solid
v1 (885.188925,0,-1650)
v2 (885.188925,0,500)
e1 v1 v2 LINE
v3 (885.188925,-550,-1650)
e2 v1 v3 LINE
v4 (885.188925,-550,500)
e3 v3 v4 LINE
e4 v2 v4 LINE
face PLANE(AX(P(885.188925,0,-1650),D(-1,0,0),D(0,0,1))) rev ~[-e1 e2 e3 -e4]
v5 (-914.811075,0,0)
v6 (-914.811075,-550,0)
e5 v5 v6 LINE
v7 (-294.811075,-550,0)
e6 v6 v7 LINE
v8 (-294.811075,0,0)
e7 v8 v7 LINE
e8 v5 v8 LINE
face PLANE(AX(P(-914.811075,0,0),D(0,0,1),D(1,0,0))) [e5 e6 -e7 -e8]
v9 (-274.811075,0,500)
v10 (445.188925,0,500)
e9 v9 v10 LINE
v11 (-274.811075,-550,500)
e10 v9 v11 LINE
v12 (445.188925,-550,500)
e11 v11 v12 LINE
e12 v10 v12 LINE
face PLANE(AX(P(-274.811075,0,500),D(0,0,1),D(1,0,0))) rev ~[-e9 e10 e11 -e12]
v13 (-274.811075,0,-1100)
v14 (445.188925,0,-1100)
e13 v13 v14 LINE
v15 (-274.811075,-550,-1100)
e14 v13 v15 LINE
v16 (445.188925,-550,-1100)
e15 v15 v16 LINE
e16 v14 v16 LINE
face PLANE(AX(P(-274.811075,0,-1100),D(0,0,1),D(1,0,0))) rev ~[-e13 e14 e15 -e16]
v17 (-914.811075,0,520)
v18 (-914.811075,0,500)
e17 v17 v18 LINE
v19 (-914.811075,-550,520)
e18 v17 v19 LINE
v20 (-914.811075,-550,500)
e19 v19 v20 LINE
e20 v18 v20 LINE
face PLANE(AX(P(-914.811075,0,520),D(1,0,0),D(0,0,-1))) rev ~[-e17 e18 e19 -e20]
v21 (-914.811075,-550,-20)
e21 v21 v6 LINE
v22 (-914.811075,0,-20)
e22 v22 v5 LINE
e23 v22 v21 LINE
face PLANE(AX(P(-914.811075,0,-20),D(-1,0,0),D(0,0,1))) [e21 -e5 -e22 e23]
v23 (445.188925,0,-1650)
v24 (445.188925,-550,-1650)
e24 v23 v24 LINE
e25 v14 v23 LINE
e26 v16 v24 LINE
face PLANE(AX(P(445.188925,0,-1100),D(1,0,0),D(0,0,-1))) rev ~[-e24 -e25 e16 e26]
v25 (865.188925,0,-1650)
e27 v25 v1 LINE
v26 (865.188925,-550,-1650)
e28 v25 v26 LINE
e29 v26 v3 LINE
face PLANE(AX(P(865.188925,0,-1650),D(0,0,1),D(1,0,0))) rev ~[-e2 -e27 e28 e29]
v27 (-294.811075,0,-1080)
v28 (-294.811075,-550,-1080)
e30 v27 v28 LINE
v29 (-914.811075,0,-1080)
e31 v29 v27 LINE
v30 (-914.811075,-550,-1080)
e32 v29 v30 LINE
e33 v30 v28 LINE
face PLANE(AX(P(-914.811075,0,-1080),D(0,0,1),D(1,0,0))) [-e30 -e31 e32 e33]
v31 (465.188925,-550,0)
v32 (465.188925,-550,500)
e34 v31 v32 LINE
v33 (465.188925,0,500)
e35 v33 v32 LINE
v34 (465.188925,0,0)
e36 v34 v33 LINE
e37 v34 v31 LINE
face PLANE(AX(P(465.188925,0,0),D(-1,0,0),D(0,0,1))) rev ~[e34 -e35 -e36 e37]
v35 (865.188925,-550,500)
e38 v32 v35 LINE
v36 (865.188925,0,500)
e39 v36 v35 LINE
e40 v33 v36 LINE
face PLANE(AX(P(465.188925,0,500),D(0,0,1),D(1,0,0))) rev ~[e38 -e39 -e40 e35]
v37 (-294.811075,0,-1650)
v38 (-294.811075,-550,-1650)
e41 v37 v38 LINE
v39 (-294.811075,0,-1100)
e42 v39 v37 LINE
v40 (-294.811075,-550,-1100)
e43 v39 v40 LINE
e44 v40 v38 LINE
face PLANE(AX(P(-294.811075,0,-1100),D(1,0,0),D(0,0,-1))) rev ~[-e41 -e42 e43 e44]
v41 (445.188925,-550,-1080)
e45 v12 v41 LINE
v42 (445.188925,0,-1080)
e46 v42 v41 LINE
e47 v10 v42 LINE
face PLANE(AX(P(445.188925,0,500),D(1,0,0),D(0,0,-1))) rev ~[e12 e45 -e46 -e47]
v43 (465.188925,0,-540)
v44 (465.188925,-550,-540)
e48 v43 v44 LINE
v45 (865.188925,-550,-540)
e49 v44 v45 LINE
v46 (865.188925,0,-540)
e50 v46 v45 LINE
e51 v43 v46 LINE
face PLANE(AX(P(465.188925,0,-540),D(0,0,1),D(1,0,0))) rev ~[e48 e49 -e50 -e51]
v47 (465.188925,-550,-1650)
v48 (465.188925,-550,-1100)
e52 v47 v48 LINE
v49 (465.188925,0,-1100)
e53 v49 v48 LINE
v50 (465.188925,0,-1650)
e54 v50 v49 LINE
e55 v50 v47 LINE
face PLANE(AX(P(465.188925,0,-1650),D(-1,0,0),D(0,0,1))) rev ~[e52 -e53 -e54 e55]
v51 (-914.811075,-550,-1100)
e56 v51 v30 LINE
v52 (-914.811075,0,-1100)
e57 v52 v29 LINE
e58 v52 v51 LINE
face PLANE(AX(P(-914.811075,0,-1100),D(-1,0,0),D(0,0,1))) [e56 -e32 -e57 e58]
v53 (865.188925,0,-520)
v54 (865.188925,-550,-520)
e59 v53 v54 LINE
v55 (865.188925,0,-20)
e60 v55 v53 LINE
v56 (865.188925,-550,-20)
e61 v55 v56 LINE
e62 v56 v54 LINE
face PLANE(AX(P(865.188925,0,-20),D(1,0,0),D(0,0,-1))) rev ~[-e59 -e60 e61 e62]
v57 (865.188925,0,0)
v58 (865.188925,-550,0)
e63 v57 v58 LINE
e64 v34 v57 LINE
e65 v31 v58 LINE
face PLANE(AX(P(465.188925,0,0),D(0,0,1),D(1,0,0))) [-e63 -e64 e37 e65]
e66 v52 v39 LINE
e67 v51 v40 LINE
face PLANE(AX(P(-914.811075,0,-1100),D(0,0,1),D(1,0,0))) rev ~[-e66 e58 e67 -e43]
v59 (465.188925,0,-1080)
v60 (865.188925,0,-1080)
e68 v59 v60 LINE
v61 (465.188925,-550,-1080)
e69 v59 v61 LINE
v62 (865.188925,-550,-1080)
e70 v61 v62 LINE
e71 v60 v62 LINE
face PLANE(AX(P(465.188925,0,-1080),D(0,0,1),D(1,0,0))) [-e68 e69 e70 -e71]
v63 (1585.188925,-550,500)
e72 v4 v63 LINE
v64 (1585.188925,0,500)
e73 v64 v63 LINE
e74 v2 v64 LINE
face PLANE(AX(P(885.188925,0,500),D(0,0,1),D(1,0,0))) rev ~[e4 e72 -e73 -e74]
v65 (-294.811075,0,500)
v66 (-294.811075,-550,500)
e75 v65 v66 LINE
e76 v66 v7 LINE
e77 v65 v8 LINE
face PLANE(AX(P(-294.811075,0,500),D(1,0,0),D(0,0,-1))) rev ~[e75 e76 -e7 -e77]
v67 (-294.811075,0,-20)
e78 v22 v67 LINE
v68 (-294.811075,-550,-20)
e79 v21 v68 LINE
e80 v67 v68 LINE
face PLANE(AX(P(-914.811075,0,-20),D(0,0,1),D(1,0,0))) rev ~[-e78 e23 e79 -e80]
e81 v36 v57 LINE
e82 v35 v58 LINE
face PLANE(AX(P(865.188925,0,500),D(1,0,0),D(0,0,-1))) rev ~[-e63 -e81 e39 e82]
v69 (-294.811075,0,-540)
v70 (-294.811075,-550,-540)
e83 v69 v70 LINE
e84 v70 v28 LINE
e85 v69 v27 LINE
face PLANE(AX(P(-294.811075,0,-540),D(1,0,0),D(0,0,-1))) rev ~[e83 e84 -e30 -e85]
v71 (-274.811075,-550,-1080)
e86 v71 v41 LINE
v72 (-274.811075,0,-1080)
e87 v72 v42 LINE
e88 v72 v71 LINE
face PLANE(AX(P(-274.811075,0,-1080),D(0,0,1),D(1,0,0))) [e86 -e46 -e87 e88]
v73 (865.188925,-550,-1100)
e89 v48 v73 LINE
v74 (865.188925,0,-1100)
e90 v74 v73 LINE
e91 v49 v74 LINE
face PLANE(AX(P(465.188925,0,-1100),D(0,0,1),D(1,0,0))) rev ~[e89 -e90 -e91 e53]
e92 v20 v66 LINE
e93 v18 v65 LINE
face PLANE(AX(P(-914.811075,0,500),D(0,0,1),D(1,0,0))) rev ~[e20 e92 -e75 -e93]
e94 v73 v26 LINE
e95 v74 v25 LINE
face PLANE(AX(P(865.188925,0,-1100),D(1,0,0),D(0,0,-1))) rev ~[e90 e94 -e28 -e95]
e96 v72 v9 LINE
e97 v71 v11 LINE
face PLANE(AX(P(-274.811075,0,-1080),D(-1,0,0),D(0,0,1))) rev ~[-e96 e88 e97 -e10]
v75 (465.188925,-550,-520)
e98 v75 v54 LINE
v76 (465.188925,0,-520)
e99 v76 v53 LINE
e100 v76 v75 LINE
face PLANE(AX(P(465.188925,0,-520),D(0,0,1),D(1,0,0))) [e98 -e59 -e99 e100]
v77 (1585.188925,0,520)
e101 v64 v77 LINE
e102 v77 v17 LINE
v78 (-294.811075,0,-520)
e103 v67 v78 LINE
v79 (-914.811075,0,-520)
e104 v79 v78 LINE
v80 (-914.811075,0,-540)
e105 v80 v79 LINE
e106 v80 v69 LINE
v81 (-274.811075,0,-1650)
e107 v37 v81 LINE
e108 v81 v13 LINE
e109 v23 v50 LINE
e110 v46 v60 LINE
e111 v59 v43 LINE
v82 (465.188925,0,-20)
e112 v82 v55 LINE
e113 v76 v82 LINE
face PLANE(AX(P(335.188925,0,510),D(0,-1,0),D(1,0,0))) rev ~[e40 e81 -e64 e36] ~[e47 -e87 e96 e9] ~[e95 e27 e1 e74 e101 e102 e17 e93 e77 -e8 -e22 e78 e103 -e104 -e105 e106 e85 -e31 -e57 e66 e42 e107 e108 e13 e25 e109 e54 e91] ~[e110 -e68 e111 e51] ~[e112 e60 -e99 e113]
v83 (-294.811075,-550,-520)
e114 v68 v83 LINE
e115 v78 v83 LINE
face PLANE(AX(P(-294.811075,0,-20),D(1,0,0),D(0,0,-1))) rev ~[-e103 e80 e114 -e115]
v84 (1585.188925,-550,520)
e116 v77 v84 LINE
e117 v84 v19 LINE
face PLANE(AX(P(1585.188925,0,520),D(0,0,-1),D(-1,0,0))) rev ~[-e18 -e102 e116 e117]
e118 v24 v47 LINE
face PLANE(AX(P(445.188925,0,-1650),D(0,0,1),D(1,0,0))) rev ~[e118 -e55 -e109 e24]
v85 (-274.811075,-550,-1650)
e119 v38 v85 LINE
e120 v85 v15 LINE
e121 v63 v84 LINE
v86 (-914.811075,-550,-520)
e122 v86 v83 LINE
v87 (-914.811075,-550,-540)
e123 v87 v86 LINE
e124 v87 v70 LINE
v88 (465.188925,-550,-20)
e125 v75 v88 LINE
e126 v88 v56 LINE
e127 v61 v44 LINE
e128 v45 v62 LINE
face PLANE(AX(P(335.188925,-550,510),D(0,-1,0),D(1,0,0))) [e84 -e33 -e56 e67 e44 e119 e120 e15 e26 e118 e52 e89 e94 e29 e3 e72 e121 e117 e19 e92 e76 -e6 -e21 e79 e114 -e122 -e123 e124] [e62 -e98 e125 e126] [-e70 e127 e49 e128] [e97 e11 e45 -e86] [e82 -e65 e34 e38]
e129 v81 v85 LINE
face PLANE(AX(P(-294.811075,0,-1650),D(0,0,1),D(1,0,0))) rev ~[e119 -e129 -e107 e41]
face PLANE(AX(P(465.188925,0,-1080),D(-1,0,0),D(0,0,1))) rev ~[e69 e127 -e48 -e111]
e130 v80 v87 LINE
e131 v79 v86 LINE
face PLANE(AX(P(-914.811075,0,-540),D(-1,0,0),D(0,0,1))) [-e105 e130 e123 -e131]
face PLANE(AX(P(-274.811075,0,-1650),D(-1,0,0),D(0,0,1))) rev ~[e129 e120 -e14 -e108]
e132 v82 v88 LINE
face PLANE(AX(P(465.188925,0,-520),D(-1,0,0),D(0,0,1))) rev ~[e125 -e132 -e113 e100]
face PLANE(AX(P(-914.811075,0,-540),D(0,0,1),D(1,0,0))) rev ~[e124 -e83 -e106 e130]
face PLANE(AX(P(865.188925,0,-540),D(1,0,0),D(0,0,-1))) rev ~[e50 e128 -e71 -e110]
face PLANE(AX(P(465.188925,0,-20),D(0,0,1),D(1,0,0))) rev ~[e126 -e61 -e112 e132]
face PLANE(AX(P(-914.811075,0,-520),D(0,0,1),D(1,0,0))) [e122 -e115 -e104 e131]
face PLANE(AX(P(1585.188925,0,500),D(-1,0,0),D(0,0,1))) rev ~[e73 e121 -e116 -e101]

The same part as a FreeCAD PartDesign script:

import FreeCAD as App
import Part
import Sketcher

V = App.Vector
Q = App.Units.Quantity


def add_polygon(sketch, points):
    """Adds a closed chain of lines whose ends are joined by coincident constraints."""
    first, n = sketch.GeometryCount, len(points)
    for a, b in zip(points, points[1:] + points[:1]):
        sketch.addGeometry(Part.LineSegment(App.Vector(*a, 0), App.Vector(*b, 0)), False)
    for i in range(n):
        sketch.addConstraint(Sketcher.Constraint("Coincident", first + i, 2, first + (i + 1) % n, 1))

doc = App.newDocument("Part")
body = doc.addObject("PartDesign::Body", "Body")

# Sketch on XZ plane
sketch1 = body.newObject("Sketcher::SketchObject", "Sketch")
sketch1.AttachmentSupport = (doc.getObject("XZ_Plane"), [""])
sketch1.MapMode = "FlatFace"
add_polygon(sketch1, [(1585, 520), (-915, 520), (-915, 500), (-295, 500), (-295, 0), (-915, 0), (-915, -20), (-295, -20), (-295, -520), (-915, -520), (-915, -540), (-295, -540), (-295, -1080), (-915, -1080), (-915, -1100), (-295, -1100), (-295, -1650), (-275, -1650), (-275, -1100), (445, -1100), (445, -1650), (465, -1650), (465, -1100), (865, -1100), (865, -1650), (885, -1650), (885, 500), (1585, 500)])  # lines 0-27
add_polygon(sketch1, [(465, -1080), (465, -540), (865, -540), (865, -1080)])  # lines 28-31
add_polygon(sketch1, [(465, -520), (465, -20), (865, -20), (865, -520)])  # lines 32-35
add_polygon(sketch1, [(465, 0), (465, 500), (865, 500), (865, 0)])  # lines 36-39
add_polygon(sketch1, [(-275, -1080), (-275, 500), (445, 500), (445, -1080)])  # lines 40-43
sketch1.addConstraint(Sketcher.Constraint("Horizontal", 0))
sketch1.addConstraint(Sketcher.Constraint("Vertical", 1))
sketch1.addConstraint(Sketcher.Constraint("Horizontal", 2))
sketch1.addConstraint(Sketcher.Constraint("Vertical", 3))
sketch1.addConstraint(Sketcher.Constraint("Horizontal", 4))
sketch1.addConstraint(Sketcher.Constraint("Vertical", 5))
sketch1.addConstraint(Sketcher.Constraint("Horizontal", 6))
sketch1.addConstraint(Sketcher.Constraint("Vertical", 7))
sketch1.addConstraint(Sketcher.Constraint("Horizontal", 8))
sketch1.addConstraint(Sketcher.Constraint("Vertical", 9))
sketch1.addConstraint(Sketcher.Constraint("Horizontal", 10))
sketch1.addConstraint(Sketcher.Constraint("Vertical", 11))
sketch1.addConstraint(Sketcher.Constraint("Horizontal", 12))
sketch1.addConstraint(Sketcher.Constraint("Vertical", 13))
sketch1.addConstraint(Sketcher.Constraint("Horizontal", 14))
sketch1.addConstraint(Sketcher.Constraint("Vertical", 15))
sketch1.addConstraint(Sketcher.Constraint("Horizontal", 16))
sketch1.addConstraint(Sketcher.Constraint("Vertical", 17))
sketch1.addConstraint(Sketcher.Constraint("Horizontal", 18))
sketch1.addConstraint(Sketcher.Constraint("Vertical", 19))
sketch1.addConstraint(Sketcher.Constraint("Horizontal", 20))
sketch1.addConstraint(Sketcher.Constraint("Vertical", 21))
sketch1.addConstraint(Sketcher.Constraint("Horizontal", 22))
sketch1.addConstraint(Sketcher.Constraint("Vertical", 23))
sketch1.addConstraint(Sketcher.Constraint("Horizontal", 24))
sketch1.addConstraint(Sketcher.Constraint("Vertical", 25))
sketch1.addConstraint(Sketcher.Constraint("Horizontal", 26))
sketch1.addConstraint(Sketcher.Constraint("Vertical", 27))
sketch1.addConstraint(Sketcher.Constraint("Vertical", 28))
sketch1.addConstraint(Sketcher.Constraint("Horizontal", 29))
sketch1.addConstraint(Sketcher.Constraint("Vertical", 30))
sketch1.addConstraint(Sketcher.Constraint("Horizontal", 31))
sketch1.addConstraint(Sketcher.Constraint("Vertical", 32))
sketch1.addConstraint(Sketcher.Constraint("Horizontal", 33))
sketch1.addConstraint(Sketcher.Constraint("Vertical", 34))
sketch1.addConstraint(Sketcher.Constraint("Horizontal", 35))
sketch1.addConstraint(Sketcher.Constraint("Vertical", 36))
sketch1.addConstraint(Sketcher.Constraint("Horizontal", 37))
sketch1.addConstraint(Sketcher.Constraint("Vertical", 38))
sketch1.addConstraint(Sketcher.Constraint("Horizontal", 39))
sketch1.addConstraint(Sketcher.Constraint("Vertical", 40))
sketch1.addConstraint(Sketcher.Constraint("Horizontal", 41))
sketch1.addConstraint(Sketcher.Constraint("Vertical", 42))
sketch1.addConstraint(Sketcher.Constraint("Horizontal", 43))
sketch1.addConstraint(Sketcher.Constraint("Symmetric", 0, 2, 8, 2, -1))
sketch1.addConstraint(Sketcher.Constraint("PointOnObject", 3, 2, -1))
sketch1.addConstraint(Sketcher.Constraint("PointOnObject", 38, 2, -1))
sketch1.addConstraint(Sketcher.Constraint("Horizontal", 14, 2, 17, 2))
sketch1.addConstraint(Sketcher.Constraint("Horizontal", 16, 2, 19, 2))
sketch1.addConstraint(Sketcher.Constraint("Horizontal", 18, 2, 21, 2))
sketch1.addConstraint(Sketcher.Constraint("Horizontal", 20, 2, 23, 2))
sketch1.addConstraint(Sketcher.Constraint("Horizontal", 2, 2, 25, 2))
sketch1.addConstraint(Sketcher.Constraint("Horizontal", 10, 2, 28, 2))
sketch1.addConstraint(Sketcher.Constraint("Horizontal", 12, 2, 30, 2))
sketch1.addConstraint(Sketcher.Constraint("Horizontal", 6, 2, 32, 2))
sketch1.addConstraint(Sketcher.Constraint("Horizontal", 8, 2, 34, 2))
sketch1.addConstraint(Sketcher.Constraint("Horizontal", 26, 2, 36, 2))
sketch1.addConstraint(Sketcher.Constraint("Horizontal", 37, 2, 40, 2))
sketch1.addConstraint(Sketcher.Constraint("Horizontal", 31, 2, 42, 2))
sketch1.addConstraint(Sketcher.Constraint("Vertical", 1, 2, 4, 2))
sketch1.addConstraint(Sketcher.Constraint("Vertical", 3, 2, 6, 2))
sketch1.addConstraint(Sketcher.Constraint("Vertical", 7, 2, 10, 2))
sketch1.addConstraint(Sketcher.Constraint("Vertical", 9, 2, 12, 2))
sketch1.addConstraint(Sketcher.Constraint("Vertical", 11, 2, 14, 2))
sketch1.addConstraint(Sketcher.Constraint("Vertical", 21, 2, 28, 2))
sketch1.addConstraint(Sketcher.Constraint("Vertical", 23, 2, 29, 2))
sketch1.addConstraint(Sketcher.Constraint("Vertical", 31, 2, 32, 2))
sketch1.addConstraint(Sketcher.Constraint("Vertical", 30, 2, 33, 2))
sketch1.addConstraint(Sketcher.Constraint("Vertical", 35, 2, 36, 2))
sketch1.addConstraint(Sketcher.Constraint("Vertical", 34, 2, 37, 2))
sketch1.addConstraint(Sketcher.Constraint("Vertical", 17, 2, 40, 2))
sketch1.addConstraint(Sketcher.Constraint("Vertical", 19, 2, 41, 2))
sketch1.addConstraint(Sketcher.Constraint("Equal", 16, 20))
sketch1.addConstraint(Sketcher.Constraint("Equal", 20, 24))
sketch1.addConstraint(Sketcher.Constraint("Equal", 24, 1))
sketch1.addConstraint(Sketcher.Constraint("Equal", 1, 5))
sketch1.addConstraint(Sketcher.Constraint("Equal", 5, 9))
sketch1.addConstraint(Sketcher.Constraint("Equal", 9, 13))
sketch1.addConstraint(Sketcher.Constraint("DistanceX", 0, 2, 0, 1, Q("2500 mm")))
sketch1.addConstraint(Sketcher.Constraint("DistanceX", 2, 1, 2, 2, Q("620 mm")))
sketch1.addConstraint(Sketcher.Constraint("DistanceX", 16, 1, 16, 2, Q("20 mm")))
sketch1.addConstraint(Sketcher.Constraint("DistanceX", 18, 1, 18, 2, Q("720 mm")))
sketch1.addConstraint(Sketcher.Constraint("DistanceX", 22, 1, 22, 2, Q("400 mm")))
sketch1.addConstraint(Sketcher.Constraint("DistanceY", 3, 2, 3, 1, Q("500 mm")))
sketch1.addConstraint(Sketcher.Constraint("DistanceY", 11, 2, 11, 1, Q("540 mm")))
sketch1.addConstraint(Sketcher.Constraint("DistanceY", 15, 2, 15, 1, Q("550 mm")))
sketch1.addConstraint(Sketcher.Constraint("DistanceX", 0, 2, -1, 1, Q("914.811075 mm")))
pad1 = body.newObject("PartDesign::Pad", "Pad")
pad1.Profile = sketch1
pad1.Length = 550

doc.recompute()
